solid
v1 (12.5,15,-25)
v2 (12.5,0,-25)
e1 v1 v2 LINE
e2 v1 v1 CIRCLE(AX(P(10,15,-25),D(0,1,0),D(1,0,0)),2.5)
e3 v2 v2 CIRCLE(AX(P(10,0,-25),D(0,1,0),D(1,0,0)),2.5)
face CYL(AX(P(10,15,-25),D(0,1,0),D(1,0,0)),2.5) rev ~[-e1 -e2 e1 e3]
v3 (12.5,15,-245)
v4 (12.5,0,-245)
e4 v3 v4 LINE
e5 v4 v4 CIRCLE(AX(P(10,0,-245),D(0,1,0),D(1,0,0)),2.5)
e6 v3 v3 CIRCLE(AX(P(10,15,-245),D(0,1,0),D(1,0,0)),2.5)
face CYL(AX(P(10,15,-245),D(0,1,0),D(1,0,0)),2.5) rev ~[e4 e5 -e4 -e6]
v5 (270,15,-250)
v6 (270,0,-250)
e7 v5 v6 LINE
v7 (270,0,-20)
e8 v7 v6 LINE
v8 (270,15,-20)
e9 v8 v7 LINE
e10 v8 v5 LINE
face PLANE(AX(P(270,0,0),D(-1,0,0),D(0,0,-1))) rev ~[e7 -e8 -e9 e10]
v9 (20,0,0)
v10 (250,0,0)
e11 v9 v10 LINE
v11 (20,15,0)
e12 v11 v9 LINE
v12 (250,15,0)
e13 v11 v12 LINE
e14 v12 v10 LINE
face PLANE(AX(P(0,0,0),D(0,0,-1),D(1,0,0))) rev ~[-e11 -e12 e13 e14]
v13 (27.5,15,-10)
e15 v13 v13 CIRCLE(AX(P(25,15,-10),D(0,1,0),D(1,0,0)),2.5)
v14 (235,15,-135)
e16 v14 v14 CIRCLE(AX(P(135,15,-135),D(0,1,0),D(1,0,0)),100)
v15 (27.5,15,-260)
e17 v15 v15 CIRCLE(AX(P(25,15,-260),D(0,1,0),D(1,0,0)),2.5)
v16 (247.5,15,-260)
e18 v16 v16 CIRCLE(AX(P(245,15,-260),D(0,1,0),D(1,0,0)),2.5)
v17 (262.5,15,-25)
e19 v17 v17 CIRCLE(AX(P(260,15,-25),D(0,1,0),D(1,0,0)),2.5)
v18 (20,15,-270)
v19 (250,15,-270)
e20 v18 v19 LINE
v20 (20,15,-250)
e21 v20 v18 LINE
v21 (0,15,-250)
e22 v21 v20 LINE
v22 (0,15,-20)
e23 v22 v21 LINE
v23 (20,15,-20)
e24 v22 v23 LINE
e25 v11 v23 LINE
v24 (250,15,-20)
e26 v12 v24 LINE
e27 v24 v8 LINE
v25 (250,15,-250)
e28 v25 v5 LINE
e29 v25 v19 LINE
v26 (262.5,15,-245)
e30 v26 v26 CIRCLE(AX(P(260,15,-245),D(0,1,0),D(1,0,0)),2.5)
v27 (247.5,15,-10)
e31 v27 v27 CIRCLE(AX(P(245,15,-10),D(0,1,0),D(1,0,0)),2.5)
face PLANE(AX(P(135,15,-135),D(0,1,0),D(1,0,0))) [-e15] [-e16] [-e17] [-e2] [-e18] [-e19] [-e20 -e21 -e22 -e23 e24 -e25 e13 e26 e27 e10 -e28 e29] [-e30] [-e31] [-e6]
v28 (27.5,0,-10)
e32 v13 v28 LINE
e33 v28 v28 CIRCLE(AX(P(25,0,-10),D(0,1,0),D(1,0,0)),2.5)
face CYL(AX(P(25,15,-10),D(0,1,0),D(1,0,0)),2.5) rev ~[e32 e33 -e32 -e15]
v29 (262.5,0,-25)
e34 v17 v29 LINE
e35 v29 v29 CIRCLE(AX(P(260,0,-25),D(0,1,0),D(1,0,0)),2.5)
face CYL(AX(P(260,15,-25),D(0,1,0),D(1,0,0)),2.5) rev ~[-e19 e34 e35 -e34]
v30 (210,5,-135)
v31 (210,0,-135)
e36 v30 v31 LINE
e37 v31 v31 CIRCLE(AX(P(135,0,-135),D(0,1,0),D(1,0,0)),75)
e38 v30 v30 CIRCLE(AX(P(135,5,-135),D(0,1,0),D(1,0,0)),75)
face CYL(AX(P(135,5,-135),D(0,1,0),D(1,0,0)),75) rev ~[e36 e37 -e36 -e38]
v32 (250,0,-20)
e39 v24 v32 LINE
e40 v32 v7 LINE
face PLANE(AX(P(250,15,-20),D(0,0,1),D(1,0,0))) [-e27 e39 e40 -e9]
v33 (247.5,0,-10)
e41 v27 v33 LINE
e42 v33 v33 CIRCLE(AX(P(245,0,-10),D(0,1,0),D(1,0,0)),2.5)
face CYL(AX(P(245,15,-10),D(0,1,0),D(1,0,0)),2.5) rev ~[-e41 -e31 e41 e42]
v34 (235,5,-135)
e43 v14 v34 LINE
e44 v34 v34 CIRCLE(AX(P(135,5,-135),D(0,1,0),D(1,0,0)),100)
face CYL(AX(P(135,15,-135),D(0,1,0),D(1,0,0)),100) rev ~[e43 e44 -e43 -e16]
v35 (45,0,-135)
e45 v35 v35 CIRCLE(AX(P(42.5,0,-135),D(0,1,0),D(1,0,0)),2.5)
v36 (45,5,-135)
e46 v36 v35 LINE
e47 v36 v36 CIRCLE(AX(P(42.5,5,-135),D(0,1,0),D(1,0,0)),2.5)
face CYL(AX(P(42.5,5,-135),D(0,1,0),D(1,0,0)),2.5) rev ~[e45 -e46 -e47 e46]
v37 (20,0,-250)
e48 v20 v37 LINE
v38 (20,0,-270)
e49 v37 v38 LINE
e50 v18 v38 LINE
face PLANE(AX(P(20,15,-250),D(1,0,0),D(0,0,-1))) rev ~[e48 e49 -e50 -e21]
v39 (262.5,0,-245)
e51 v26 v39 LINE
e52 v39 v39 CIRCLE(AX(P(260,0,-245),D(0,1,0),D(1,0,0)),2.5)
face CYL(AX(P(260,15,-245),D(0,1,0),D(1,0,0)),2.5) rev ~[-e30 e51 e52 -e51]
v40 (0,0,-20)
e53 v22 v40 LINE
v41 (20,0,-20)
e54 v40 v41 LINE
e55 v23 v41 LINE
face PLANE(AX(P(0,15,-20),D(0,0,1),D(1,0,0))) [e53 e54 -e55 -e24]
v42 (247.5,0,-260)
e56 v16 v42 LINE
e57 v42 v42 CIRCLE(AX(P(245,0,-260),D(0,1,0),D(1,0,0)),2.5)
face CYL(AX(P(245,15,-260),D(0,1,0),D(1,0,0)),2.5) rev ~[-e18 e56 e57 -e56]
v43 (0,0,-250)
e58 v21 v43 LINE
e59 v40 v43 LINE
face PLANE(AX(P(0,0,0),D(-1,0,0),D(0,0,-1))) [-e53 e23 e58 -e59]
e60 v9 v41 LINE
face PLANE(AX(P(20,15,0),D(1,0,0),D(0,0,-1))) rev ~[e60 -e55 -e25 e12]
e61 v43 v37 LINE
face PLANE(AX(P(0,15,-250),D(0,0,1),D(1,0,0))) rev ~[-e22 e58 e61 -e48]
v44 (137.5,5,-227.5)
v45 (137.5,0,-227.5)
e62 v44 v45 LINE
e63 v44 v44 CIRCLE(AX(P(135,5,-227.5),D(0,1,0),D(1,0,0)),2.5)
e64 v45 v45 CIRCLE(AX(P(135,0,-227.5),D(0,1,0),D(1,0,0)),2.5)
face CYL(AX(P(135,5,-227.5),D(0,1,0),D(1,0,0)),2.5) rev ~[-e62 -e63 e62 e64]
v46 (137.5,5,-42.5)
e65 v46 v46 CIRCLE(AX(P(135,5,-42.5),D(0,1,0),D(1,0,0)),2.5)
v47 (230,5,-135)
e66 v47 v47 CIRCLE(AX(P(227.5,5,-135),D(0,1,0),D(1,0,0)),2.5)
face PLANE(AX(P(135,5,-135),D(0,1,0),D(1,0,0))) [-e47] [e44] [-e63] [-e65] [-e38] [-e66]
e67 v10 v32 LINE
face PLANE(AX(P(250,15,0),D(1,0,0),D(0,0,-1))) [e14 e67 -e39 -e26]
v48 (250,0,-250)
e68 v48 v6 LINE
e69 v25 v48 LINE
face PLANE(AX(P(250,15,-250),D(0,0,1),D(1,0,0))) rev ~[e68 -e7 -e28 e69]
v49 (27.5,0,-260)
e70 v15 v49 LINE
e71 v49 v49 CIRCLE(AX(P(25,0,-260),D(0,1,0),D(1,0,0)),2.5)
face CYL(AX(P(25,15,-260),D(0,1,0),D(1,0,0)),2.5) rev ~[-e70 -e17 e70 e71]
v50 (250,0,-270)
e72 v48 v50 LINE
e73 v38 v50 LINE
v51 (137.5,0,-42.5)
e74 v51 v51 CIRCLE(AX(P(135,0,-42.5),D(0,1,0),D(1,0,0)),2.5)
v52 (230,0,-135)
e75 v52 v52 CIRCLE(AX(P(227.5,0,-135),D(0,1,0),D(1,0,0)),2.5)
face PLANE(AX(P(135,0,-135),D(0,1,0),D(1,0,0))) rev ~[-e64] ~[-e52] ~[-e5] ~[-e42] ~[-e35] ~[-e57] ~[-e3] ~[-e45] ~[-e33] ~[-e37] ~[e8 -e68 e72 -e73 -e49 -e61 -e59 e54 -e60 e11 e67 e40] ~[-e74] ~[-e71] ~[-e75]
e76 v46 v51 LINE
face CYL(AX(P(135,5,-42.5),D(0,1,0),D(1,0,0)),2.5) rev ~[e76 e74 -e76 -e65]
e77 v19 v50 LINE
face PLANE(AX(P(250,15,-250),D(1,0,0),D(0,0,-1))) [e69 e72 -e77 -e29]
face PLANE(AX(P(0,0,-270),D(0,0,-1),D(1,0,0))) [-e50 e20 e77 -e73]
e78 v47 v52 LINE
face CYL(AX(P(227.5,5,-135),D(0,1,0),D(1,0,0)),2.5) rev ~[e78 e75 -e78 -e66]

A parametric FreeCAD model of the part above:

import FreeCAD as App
import Part
import Sketcher

V = App.Vector
Q = App.Units.Quantity


def add_polygon(sketch, points):
    """Adds a closed chain of lines whose ends are joined by coincident constraints."""
    first, n = sketch.GeometryCount, len(points)
    for a, b in zip(points, points[1:] + points[:1]):
        sketch.addGeometry(Part.LineSegment(App.Vector(*a, 0), App.Vector(*b, 0)), False)
    for i in range(n):
        sketch.addConstraint(Sketcher.Constraint("Coincident", first + i, 2, first + (i + 1) % n, 1))

doc = App.newDocument("Part")
body = doc.addObject("PartDesign::Body", "Body")

sketch1 = doc.addObject("Sketcher::SketchObject", "Sketch")
body.addObject(sketch1)
sketch1.AttachmentSupport = (doc.XZ_Plane, [""])
sketch1.MapMode = "FlatFace"
add_polygon(sketch1, [(0, -270), (0, 0), (270, 0), (270, -270)])
sketch1.addConstraint(Sketcher.Constraint("Vertical", 0))
sketch1.addConstraint(Sketcher.Constraint("Horizontal", 1))
sketch1.addConstraint(Sketcher.Constraint("Vertical", 2))
sketch1.addConstraint(Sketcher.Constraint("Horizontal", 3))
sketch1.addConstraint(Sketcher.Constraint("Coincident", 0, 2, -1, 1))
sketch1.addConstraint(Sketcher.Constraint("Equal", 3, 0))
sketch1.addConstraint(Sketcher.Constraint("DistanceX", 1, 1, 1, 2, Q("270 mm")))
pad1 = doc.addObject("PartDesign::Pad", "Pad")
body.addObject(pad1)
pad1.Profile = sketch1
pad1.Length = 15
pad1.Reversed = True

sketch2 = doc.addObject("Sketcher::SketchObject", "Sketch001")
body.addObject(sketch2)
sketch2.AttachmentSupport = (doc.XZ_Plane, [""])
sketch2.MapMode = "FlatFace"
sketch2.AttachmentOffset = App.Placement(V(0, 0, -15), App.Rotation())
add_polygon(sketch2, [(0, -270), (0, -250), (20, -250), (20, -270)])
add_polygon(sketch2, [(250, -270), (250, -250), (270, -250), (270, -270)])
add_polygon(sketch2, [(250, -20), (250, 0), (270, 0), (270, -20)])
add_polygon(sketch2, [(0, -20), (0, 0), (20, 0), (20, -20)])
sketch2.addConstraint(Sketcher.Constraint("Vertical", 0))
sketch2.addConstraint(Sketcher.Constraint("Horizontal", 1))
sketch2.addConstraint(Sketcher.Constraint("Vertical", 2))
sketch2.addConstraint(Sketcher.Constraint("Horizontal", 3))
sketch2.addConstraint(Sketcher.Constraint("Vertical", 4))
sketch2.addConstraint(Sketcher.Constraint("Horizontal", 5))
sketch2.addConstraint(Sketcher.Constraint("Vertical", 6))
sketch2.addConstraint(Sketcher.Constraint("Horizontal", 7))
sketch2.addConstraint(Sketcher.Constraint("Vertical", 8))
sketch2.addConstraint(Sketcher.Constraint("Horizontal", 9))
sketch2.addConstraint(Sketcher.Constraint("Vertical", 10))
sketch2.addConstraint(Sketcher.Constraint("Horizontal", 11))
sketch2.addConstraint(Sketcher.Constraint("Vertical", 12))
sketch2.addConstraint(Sketcher.Constraint("Horizontal", 13))
sketch2.addConstraint(Sketcher.Constraint("Vertical", 14))
sketch2.addConstraint(Sketcher.Constraint("Horizontal", 15))
sketch2.addConstraint(Sketcher.Constraint("Coincident", 12, 2, -1, 1))
sketch2.addConstraint(Sketcher.Constraint("PointOnObject", 0, 2, -2))
sketch2.addConstraint(Sketcher.Constraint("PointOnObject", 8, 2, -1))
sketch2.addConstraint(Sketcher.Constraint("Horizontal", 1, 2, 4, 2))
sketch2.addConstraint(Sketcher.Constraint("Horizontal", 3, 2, 6, 2))
sketch2.addConstraint(Sketcher.Constraint("Horizontal", 11, 2, 14, 2))
sketch2.addConstraint(Sketcher.Constraint("Vertical", 7, 2, 8, 2))
sketch2.addConstraint(Sketcher.Constraint("Vertical", 6, 2, 9, 2))
sketch2.addConstraint(Sketcher.Constraint("Vertical", 2, 2, 13, 2))
sketch2.addConstraint(Sketcher.Constraint("Equal", 3, 5))
sketch2.addConstraint(Sketcher.Constraint("Equal", 15, 0))
sketch2.addConstraint(Sketcher.Constraint("Equal", 6, 8))
sketch2.addConstraint(Sketcher.Constraint("DistanceX", 1, 1, 1, 2, Q("20 mm")))
sketch2.addConstraint(Sketcher.Constraint("DistanceY", 0, 2, -1, 1, Q("250 mm")))
sketch2.addConstraint(Sketcher.Constraint("DistanceX", -1, 1, 4, 2, Q("250 mm")))
pocket1 = doc.addObject("PartDesign::Pocket", "Pocket")
body.addObject(pocket1)
pocket1.Profile = sketch2
pocket1.Type = "ThroughAll"
pocket1.Reversed = True

sketch3 = doc.addObject("Sketcher::SketchObject", "Sketch002")
body.addObject(sketch3)
sketch3.AttachmentSupport = (doc.XZ_Plane, [""])
sketch3.MapMode = "FlatFace"
sketch3.AttachmentOffset = App.Placement(V(0, 0, -15), App.Rotation())
sketch3.addGeometry(Part.Circle(V(10, -245, 0), V(0, 0, 1), 2.5), False)
sketch3.addGeometry(Part.Circle(V(10, -25, 0), V(0, 0, 1), 2.5), False)
sketch3.addGeometry(Part.Circle(V(25, -10, 0), V(0, 0, 1), 2.5), False)
sketch3.addGeometry(Part.Circle(V(245, -10, 0), V(0, 0, 1), 2.5), False)
sketch3.addGeometry(Part.Circle(V(260, -25, 0), V(0, 0, 1), 2.5), False)
sketch3.addGeometry(Part.Circle(V(260, -245, 0), V(0, 0, 1), 2.5), False)
sketch3.addGeometry(Part.Circle(V(245, -260, 0), V(0, 0, 1), 2.5), False)
sketch3.addGeometry(Part.Circle(V(25, -260, 0), V(0, 0, 1), 2.5), False)
sketch3.addConstraint(Sketcher.Constraint("Equal", 0, 1))
sketch3.addConstraint(Sketcher.Constraint("Equal", 1, 2))
sketch3.addConstraint(Sketcher.Constraint("Equal", 2, 3))
sketch3.addConstraint(Sketcher.Constraint("Equal", 3, 4))
sketch3.addConstraint(Sketcher.Constraint("Equal", 4, 5))
sketch3.addConstraint(Sketcher.Constraint("Equal", 5, 6))
sketch3.addConstraint(Sketcher.Constraint("Equal", 6, 7))
sketch3.addConstraint(Sketcher.Constraint("Horizontal", 2, 3, 3, 3))
sketch3.addConstraint(Sketcher.Constraint("Horizontal", 1, 3, 4, 3))
sketch3.addConstraint(Sketcher.Constraint("Horizontal", 0, 3, 5, 3))
sketch3.addConstraint(Sketcher.Constraint("Horizontal", 6, 3, 7, 3))
sketch3.addConstraint(Sketcher.Constraint("Vertical", 0, 3, 1, 3))
sketch3.addConstraint(Sketcher.Constraint("Vertical", 4, 3, 5, 3))
sketch3.addConstraint(Sketcher.Constraint("Vertical", 3, 3, 6, 3))
sketch3.addConstraint(Sketcher.Constraint("Vertical", 2, 3, 7, 3))
sketch3.addConstraint(Sketcher.Constraint("Diameter", 0, Q("5 mm")))
sketch3.addConstraint(Sketcher.Constraint("DistanceX", -1, 1, 0, 3, Q("10 mm")))
sketch3.addConstraint(Sketcher.Constraint("DistanceY", 0, 3, -1, 1, Q("245 mm")))
sketch3.addConstraint(Sketcher.Constraint("DistanceY", 1, 3, -1, 1, Q("25 mm")))
sketch3.addConstraint(Sketcher.Constraint("DistanceX", -1, 1, 2, 3, Q("25 mm")))
sketch3.addConstraint(Sketcher.Constraint("DistanceY", 2, 3, -1, 1, Q("10 mm")))
sketch3.addConstraint(Sketcher.Constraint("DistanceX", -1, 1, 3, 3, Q("245 mm")))
sketch3.addConstraint(Sketcher.Constraint("DistanceX", -1, 1, 4, 3, Q("260 mm")))
sketch3.addConstraint(Sketcher.Constraint("DistanceY", 6, 3, -1, 1, Q("260 mm")))
pocket2 = doc.addObject("PartDesign::Pocket", "Pocket001")
body.addObject(pocket2)
pocket2.Profile = sketch3
pocket2.Type = "ThroughAll"
pocket2.Reversed = True

sketch4 = doc.addObject("Sketcher::SketchObject", "Sketch003")
body.addObject(sketch4)
sketch4.AttachmentSupport = (doc.XZ_Plane, [""])
sketch4.MapMode = "FlatFace"
sketch4.AttachmentOffset = App.Placement(V(0, 0, -15), App.Rotation())
sketch4.addGeometry(Part.Circle(V(135, -135, 0), V(0, 0, 1), 100), False)
sketch4.addConstraint(Sketcher.Constraint("Diameter", 0, Q("200 mm")))
sketch4.addConstraint(Sketcher.Constraint("DistanceX", -1, 1, 0, 3, Q("135 mm")))
sketch4.addConstraint(Sketcher.Constraint("DistanceY", 0, 3, -1, 1, Q("135 mm")))
pocket3 = doc.addObject("PartDesign::Pocket", "Pocket002")
body.addObject(pocket3)
pocket3.Profile = sketch4
pocket3.Length = 10
pocket3.Reversed = True

sketch5 = doc.addObject("Sketcher::SketchObject", "Sketch004")
body.addObject(sketch5)
sketch5.AttachmentSupport = (doc.XZ_Plane, [""])
sketch5.MapMode = "FlatFace"
sketch5.AttachmentOffset = App.Placement(V(0, 0, -5), App.Rotation())
sketch5.addGeometry(Part.Circle(V(135, -135, 0), V(0, 0, 1), 75), False)
sketch5.addGeometry(Part.Circle(V(135, -227.5, 0), V(0, 0, 1), 2.5), False)
sketch5.addGeometry(Part.Circle(V(227.5, -135, 0), V(0, 0, 1), 2.5), False)
sketch5.addGeometry(Part.Circle(V(135, -42.5, 0), V(0, 0, 1), 2.5), False)
sketch5.addGeometry(Part.Circle(V(42.5, -135, 0), V(0, 0, 1), 2.5), False)
sketch5.addConstraint(Sketcher.Constraint("Equal", 1, 2))
sketch5.addConstraint(Sketcher.Constraint("Equal", 2, 3))
sketch5.addConstraint(Sketcher.Constraint("Equal", 3, 4))
sketch5.addConstraint(Sketcher.Constraint("Horizontal", 0, 3, 2, 3))
sketch5.addConstraint(Sketcher.Constraint("Horizontal", 2, 3, 4, 3))
sketch5.addConstraint(Sketcher.Constraint("Vertical", 0, 3, 1, 3))
sketch5.addConstraint(Sketcher.Constraint("Vertical", 1, 3, 3, 3))
sketch5.addConstraint(Sketcher.Constraint("Diameter", 0, Q("150 mm")))
sketch5.addConstraint(Sketcher.Constraint("Diameter", 1, Q("5 mm")))
sketch5.addConstraint(Sketcher.Constraint("DistanceX", -1, 1, 0, 3, Q("135 mm")))
sketch5.addConstraint(Sketcher.Constraint("DistanceY", 0, 3, -1, 1, Q("135 mm")))
sketch5.addConstraint(Sketcher.Constraint("DistanceY", 1, 3, 3, 3, Q("185 mm")))
sketch5.addConstraint(Sketcher.Constraint("DistanceX", 4, 3, 2, 3, Q("185 mm")))
sketch5.addConstraint(Sketcher.Constraint("DistanceY", 1, 3, -1, 1, Q("227.5 mm")))
sketch5.addConstraint(Sketcher.Constraint("DistanceX", -1, 1, 2, 3, Q("227.5 mm")))
pocket4 = doc.addObject("PartDesign::Pocket", "Pocket003")
body.addObject(pocket4)
pocket4.Profile = sketch5
pocket4.Type = "ThroughAll"
pocket4.Reversed = True

doc.recompute()
